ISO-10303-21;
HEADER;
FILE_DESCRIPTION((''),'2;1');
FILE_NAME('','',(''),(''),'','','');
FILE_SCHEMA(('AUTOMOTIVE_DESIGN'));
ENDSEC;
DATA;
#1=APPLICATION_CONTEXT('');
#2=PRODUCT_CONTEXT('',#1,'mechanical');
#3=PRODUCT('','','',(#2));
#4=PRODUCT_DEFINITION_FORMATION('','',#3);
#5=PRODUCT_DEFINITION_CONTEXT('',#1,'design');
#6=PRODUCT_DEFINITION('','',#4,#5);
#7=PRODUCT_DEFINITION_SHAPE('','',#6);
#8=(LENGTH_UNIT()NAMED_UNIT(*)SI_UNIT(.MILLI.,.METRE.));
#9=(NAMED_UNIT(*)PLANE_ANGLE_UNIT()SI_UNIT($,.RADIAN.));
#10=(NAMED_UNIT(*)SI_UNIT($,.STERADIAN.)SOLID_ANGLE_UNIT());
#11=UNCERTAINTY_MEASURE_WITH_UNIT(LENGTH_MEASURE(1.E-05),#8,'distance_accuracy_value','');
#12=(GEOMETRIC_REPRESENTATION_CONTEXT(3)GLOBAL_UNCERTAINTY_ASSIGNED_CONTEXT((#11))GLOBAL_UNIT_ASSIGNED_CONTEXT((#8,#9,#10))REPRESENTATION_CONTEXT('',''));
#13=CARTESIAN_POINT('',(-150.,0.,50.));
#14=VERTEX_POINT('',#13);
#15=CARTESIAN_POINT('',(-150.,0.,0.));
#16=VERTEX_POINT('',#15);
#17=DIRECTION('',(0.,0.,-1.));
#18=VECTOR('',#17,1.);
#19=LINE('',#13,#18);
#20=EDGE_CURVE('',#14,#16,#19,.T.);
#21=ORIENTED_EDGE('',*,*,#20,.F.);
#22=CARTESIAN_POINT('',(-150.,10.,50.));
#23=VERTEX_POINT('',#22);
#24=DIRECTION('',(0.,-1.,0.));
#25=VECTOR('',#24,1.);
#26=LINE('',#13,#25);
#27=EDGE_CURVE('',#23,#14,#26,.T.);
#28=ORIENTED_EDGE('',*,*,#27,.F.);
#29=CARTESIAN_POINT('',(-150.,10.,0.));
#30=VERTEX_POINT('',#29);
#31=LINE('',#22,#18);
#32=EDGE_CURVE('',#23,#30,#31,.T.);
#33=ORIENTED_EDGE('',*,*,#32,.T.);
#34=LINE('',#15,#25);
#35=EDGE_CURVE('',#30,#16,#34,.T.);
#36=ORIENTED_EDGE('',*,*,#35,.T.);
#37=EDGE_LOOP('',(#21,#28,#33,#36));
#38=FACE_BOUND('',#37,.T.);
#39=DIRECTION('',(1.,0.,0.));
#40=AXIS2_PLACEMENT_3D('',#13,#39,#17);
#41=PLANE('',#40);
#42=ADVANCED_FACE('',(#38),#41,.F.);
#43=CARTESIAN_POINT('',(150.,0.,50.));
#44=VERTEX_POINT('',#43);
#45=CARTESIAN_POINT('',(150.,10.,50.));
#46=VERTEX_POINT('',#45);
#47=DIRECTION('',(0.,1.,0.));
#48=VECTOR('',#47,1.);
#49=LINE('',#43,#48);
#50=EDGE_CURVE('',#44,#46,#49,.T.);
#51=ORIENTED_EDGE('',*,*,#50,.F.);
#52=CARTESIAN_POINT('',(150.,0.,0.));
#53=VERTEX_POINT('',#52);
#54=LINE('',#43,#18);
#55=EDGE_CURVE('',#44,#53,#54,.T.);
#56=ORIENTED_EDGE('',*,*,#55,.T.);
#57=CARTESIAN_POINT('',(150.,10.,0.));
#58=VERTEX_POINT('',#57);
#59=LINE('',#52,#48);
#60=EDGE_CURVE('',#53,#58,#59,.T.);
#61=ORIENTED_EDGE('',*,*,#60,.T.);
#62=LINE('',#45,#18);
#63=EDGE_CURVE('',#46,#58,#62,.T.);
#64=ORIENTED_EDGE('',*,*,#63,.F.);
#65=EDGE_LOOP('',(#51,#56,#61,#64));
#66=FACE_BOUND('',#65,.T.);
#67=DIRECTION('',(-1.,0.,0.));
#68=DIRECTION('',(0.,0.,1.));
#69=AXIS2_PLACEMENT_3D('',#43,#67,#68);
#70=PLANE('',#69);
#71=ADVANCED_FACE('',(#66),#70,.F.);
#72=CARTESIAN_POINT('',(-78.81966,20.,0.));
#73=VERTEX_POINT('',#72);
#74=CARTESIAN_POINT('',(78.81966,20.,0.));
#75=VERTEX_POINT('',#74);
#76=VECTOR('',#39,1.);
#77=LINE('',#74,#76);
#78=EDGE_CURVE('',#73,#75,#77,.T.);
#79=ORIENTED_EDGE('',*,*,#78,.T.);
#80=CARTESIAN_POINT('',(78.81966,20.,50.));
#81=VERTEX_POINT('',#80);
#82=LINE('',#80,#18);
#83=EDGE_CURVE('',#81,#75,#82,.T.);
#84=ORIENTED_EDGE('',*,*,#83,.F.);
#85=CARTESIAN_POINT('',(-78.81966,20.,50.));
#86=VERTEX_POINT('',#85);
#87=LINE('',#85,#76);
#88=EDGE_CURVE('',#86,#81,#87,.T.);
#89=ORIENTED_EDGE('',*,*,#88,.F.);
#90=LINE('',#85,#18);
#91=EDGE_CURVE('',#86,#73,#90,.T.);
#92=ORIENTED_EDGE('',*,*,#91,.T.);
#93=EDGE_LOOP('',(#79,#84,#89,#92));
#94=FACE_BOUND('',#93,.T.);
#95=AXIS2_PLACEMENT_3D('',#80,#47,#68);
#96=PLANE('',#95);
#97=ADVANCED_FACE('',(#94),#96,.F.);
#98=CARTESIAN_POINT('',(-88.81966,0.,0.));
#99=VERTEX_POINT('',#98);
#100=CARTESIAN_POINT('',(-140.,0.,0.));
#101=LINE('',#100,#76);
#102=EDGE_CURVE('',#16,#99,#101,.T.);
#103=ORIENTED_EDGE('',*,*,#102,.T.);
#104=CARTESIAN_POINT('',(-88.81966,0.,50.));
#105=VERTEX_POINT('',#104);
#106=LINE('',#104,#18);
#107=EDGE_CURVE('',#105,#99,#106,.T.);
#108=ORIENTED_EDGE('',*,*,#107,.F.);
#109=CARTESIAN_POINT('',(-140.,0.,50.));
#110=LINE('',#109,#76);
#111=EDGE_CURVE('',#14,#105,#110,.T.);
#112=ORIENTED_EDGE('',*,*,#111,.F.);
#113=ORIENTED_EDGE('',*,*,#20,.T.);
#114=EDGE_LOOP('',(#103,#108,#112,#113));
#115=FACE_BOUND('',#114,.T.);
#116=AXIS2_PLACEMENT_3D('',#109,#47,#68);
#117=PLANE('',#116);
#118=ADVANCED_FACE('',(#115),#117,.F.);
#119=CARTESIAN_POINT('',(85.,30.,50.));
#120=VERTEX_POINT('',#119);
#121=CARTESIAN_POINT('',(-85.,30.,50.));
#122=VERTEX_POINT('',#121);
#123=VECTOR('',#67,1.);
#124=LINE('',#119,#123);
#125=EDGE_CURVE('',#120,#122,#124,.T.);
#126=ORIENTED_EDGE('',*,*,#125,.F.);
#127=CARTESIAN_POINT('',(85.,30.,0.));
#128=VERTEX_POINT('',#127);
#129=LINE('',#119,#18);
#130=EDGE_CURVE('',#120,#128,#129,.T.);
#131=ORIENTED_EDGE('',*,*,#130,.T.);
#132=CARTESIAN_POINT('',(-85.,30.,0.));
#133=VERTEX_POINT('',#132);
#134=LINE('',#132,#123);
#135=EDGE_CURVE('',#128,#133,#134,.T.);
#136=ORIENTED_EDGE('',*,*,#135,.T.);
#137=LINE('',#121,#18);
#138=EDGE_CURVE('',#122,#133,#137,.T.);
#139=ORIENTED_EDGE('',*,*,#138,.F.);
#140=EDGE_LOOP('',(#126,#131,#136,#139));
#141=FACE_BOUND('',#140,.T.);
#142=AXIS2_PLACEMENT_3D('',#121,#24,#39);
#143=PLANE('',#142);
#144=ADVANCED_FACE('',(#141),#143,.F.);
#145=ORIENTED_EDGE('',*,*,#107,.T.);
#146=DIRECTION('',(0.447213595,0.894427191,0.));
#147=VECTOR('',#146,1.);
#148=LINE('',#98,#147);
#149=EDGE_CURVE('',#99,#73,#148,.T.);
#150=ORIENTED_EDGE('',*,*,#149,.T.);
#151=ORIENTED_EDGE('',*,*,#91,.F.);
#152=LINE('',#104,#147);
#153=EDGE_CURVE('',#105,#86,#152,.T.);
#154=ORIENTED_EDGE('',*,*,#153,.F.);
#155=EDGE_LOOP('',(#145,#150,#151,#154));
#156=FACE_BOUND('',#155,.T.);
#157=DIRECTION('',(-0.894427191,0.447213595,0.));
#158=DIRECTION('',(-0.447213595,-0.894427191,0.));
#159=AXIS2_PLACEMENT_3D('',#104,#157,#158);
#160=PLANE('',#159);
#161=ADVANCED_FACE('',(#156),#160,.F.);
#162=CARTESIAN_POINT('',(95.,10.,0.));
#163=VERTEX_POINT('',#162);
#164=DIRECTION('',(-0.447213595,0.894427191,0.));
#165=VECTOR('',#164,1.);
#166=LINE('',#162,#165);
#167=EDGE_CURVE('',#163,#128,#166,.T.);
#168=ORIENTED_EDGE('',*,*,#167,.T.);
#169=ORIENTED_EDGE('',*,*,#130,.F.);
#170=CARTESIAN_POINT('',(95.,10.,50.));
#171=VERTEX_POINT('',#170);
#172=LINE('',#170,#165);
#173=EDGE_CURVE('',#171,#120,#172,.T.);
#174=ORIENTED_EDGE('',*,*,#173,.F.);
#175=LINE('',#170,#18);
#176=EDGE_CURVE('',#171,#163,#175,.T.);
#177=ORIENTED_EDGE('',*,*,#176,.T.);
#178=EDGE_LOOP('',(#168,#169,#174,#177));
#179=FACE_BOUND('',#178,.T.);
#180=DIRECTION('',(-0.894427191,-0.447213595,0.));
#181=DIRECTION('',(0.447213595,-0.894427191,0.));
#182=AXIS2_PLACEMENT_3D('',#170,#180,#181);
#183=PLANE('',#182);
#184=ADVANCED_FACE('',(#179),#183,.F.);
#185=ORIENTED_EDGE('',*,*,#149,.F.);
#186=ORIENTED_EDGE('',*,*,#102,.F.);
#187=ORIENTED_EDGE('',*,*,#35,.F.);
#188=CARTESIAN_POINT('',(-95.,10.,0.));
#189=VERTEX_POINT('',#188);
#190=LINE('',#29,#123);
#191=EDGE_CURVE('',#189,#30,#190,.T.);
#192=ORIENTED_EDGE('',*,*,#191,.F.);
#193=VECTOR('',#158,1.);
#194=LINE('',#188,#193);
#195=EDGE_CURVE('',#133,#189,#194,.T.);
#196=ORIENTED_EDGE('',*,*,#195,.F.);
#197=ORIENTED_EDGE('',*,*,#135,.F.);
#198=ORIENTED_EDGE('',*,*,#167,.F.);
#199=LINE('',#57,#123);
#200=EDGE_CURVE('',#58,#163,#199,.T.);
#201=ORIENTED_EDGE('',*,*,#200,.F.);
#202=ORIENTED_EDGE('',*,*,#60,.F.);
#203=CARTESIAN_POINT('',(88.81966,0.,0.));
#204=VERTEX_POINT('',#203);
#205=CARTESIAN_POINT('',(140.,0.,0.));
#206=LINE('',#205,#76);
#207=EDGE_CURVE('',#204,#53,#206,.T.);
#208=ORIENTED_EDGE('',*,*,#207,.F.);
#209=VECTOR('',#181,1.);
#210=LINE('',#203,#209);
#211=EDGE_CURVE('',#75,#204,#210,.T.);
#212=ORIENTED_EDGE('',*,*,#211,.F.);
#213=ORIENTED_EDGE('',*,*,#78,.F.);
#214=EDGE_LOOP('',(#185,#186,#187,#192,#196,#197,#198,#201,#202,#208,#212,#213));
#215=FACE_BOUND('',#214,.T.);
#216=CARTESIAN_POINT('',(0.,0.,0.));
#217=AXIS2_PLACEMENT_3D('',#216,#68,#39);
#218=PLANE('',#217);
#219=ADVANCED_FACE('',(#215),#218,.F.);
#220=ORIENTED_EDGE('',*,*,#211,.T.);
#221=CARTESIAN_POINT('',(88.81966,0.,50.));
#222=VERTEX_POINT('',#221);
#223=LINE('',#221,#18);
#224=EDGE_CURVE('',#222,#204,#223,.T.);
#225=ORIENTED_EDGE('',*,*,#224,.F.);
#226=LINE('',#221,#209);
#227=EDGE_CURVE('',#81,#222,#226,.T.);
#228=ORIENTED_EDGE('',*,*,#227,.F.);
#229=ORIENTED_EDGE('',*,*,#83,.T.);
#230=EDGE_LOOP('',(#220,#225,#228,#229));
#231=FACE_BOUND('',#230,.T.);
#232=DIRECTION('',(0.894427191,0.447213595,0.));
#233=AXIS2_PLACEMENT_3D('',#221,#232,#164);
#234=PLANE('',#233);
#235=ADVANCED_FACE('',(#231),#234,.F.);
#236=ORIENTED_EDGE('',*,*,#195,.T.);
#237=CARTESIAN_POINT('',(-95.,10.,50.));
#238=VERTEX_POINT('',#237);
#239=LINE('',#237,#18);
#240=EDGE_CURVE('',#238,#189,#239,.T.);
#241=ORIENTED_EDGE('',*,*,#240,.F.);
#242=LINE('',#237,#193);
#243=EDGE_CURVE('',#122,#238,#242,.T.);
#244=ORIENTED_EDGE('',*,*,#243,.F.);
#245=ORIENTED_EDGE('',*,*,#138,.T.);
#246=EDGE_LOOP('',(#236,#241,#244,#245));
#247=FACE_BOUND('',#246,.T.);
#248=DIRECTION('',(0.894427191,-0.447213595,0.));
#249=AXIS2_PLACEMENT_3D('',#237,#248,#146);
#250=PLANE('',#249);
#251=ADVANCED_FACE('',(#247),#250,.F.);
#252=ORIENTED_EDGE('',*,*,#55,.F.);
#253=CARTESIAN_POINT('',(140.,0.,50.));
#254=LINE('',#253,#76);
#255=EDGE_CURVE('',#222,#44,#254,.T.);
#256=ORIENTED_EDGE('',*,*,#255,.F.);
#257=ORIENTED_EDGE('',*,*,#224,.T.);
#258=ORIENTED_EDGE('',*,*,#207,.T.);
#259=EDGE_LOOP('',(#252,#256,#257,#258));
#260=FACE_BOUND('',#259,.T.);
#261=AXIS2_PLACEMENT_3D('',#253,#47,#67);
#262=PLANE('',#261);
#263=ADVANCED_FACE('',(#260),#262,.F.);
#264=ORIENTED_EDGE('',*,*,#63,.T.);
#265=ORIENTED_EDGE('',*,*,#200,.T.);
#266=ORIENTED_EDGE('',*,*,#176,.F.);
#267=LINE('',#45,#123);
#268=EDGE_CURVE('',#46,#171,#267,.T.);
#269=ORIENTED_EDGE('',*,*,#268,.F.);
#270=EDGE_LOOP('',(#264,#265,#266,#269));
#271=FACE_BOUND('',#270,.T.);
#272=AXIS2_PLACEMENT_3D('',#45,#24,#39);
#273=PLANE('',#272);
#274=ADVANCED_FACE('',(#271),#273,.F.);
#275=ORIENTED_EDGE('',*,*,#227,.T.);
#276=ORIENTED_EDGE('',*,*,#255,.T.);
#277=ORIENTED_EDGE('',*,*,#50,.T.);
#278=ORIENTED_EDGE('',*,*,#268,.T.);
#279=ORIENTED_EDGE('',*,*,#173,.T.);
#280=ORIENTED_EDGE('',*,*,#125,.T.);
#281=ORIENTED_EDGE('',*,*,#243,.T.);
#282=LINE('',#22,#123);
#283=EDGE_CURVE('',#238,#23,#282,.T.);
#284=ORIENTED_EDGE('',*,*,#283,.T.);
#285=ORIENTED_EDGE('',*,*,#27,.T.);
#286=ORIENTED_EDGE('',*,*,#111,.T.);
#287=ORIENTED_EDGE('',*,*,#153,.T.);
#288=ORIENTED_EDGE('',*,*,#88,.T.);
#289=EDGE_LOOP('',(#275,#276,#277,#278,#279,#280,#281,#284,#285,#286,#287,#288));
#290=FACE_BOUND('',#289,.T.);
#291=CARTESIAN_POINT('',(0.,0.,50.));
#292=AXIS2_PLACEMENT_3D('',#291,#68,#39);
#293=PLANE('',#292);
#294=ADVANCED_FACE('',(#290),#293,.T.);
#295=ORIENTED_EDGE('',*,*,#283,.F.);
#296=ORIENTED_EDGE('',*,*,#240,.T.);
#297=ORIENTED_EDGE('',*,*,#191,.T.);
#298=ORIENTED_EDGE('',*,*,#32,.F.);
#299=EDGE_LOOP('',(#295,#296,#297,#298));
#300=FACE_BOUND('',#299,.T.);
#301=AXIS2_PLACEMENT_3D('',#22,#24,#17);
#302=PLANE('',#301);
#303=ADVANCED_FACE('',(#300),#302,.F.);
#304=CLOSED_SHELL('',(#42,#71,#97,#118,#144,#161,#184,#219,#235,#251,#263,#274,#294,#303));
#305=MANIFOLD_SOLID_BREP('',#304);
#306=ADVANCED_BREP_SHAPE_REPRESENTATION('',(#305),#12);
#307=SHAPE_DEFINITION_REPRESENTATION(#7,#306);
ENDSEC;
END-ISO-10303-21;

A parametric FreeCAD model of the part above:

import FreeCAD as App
import Part
import Sketcher
from FreeCAD import Vector
Q = App.Units.Quantity


def add_polygon(sketch, points):
    """Adds a closed chain of lines whose ends are joined by coincident constraints."""
    first, n = sketch.GeometryCount, len(points)
    for a, b in zip(points, points[1:] + points[:1]):
        sketch.addGeometry(Part.LineSegment(App.Vector(*a, 0), App.Vector(*b, 0)), False)
    for i in range(n):
        sketch.addConstraint(Sketcher.Constraint("Coincident", first + i, 2, first + (i + 1) % n, 1))

doc = App.newDocument("Part")
body = doc.addObject("PartDesign::Body", "Body")

# Sketch on XY plane
sketch1 = body.newObject("Sketcher::SketchObject", "Sketch")
sketch1.AttachmentSupport = (doc.getObject("XY_Plane"), [""])
sketch1.MapMode = "FlatFace"
add_polygon(sketch1, [(-150, 10), (-150, 0), (-88.81966, 0), (-78.81966, 20), (78.81966, 20), (88.81966, 0), (150, 0), (150, 10), (95, 10), (85, 30), (-85, 30), (-95, 10)])  # lines 0-11
sketch1.addConstraint([
    Sketcher.Constraint("Vertical", 0),
    Sketcher.Constraint("Horizontal", 1),
    Sketcher.Constraint("Horizontal", 3),
    Sketcher.Constraint("Horizontal", 5),
    Sketcher.Constraint("Vertical", 6),
    Sketcher.Constraint("Horizontal", 7),
    Sketcher.Constraint("Horizontal", 9),
    Sketcher.Constraint("Horizontal", 11),
    Sketcher.Constraint("Symmetric", 1, 2, 4, 2, -1, 1),
    Sketcher.Constraint("Symmetric", 0, 2, 5, 2, -2),
    Sketcher.Constraint("Symmetric", 7, 2, 10, 2, -2),
    Sketcher.Constraint("Parallel", 4, 8),
    Sketcher.Constraint("Parallel", 2, 10),
    Sketcher.Constraint("Equal", 2, 4),
    Sketcher.Constraint("Equal", 4, 8),
    Sketcher.Constraint("DistanceX", 7, 2, 7, 1, Q("55 mm")),
    Sketcher.Constraint("DistanceX", 9, 2, 9, 1, Q("170 mm")),
    Sketcher.Constraint("DistanceY", 0, 2, 0, 1, Q("10 mm")),
    Sketcher.Constraint("DistanceX", 0, 2, -1, 1, Q("150 mm")),
    Sketcher.Constraint("DistanceY", -1, 1, 2, 2, Q("20 mm")),
    Sketcher.Constraint("DistanceX", 1, 1, 1, 2, Q("61.18034 mm")),
])
pad1 = body.newObject("PartDesign::Pad", "Pad")
pad1.Profile = sketch1
pad1.Length = 50

doc.recompute()
